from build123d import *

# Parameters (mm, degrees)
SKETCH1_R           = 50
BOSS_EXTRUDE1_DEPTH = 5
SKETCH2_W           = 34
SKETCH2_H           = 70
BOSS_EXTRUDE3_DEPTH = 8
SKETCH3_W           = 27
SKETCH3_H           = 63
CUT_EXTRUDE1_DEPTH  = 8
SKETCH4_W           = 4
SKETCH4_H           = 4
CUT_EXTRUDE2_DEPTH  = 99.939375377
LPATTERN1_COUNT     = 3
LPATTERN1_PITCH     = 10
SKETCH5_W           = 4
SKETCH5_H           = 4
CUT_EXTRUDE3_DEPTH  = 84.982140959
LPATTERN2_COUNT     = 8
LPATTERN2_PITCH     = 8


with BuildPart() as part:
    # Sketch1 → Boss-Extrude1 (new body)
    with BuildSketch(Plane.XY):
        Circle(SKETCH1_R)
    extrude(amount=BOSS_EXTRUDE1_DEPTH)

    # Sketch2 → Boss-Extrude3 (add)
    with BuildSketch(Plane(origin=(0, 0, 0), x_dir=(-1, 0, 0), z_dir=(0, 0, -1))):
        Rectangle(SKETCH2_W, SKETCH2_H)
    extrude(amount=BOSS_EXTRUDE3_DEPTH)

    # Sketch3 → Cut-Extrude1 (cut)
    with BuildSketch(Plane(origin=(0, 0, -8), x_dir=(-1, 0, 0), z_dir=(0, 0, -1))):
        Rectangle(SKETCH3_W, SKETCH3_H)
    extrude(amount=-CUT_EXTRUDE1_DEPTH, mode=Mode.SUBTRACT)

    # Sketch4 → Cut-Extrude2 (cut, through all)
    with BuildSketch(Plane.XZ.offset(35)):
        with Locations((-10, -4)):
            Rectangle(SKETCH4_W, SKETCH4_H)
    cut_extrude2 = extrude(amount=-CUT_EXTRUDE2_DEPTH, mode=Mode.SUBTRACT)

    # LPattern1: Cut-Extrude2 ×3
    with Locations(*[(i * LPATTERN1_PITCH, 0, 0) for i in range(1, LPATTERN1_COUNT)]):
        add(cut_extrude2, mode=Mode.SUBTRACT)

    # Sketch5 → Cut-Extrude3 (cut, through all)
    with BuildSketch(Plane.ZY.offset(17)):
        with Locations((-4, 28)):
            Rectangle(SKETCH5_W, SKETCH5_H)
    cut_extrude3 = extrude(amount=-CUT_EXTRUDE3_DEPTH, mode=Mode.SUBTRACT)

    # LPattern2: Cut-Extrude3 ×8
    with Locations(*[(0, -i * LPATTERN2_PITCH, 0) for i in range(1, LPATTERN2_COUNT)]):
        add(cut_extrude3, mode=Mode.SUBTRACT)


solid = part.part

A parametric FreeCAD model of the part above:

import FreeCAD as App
import Part
import Sketcher

V = App.Vector
Q = App.Units.Quantity

doc = App.newDocument("Part")
body = doc.addObject("PartDesign::Body", "Body")

# Sketch on XY plane
sketch1 = body.newObject("Sketcher::SketchObject", "Sketch")
sketch1.AttachmentSupport = (doc.getObject("XY_Plane"), [""])
sketch1.MapMode = "FlatFace"
sketch1.addGeometry(Part.Circle(V(0, 0, 0), V(0, 0, 1), 50), False)
sketch1.addConstraint(Sketcher.Constraint("Coincident", 0, 3, -1, 1))
sketch1.addConstraint(Sketcher.Constraint("Diameter", 0, Q("100 mm")))
pad1 = body.newObject("PartDesign::Pad", "Pad")
pad1.Profile = sketch1
pad1.Length = 5

# Sketch on XY plane
sketch2 = body.newObject("Sketcher::SketchObject", "Sketch001")
sketch2.AttachmentSupport = (doc.getObject("XY_Plane"), [""])
sketch2.MapMode = "FlatFace"
sketch2.addGeometry(Part.LineSegment(V(17, 35, 0), V(17, -35, 0)), False)
sketch2.addGeometry(Part.LineSegment(V(17, -35, 0), V(-17, -35, 0)), False)
sketch2.addGeometry(Part.LineSegment(V(-17, -35, 0), V(-17, 35, 0)), False)
sketch2.addGeometry(Part.LineSegment(V(-17, 35, 0), V(17, 35, 0)), False)
sketch2.addConstraint(Sketcher.Constraint("Coincident", 0, 2, 1, 1))
sketch2.addConstraint(Sketcher.Constraint("Coincident", 1, 2, 2, 1))
sketch2.addConstraint(Sketcher.Constraint("Coincident", 2, 2, 3, 1))
sketch2.addConstraint(Sketcher.Constraint("Coincident", 3, 2, 0, 1))
sketch2.addConstraint(Sketcher.Constraint("Vertical", 0))
sketch2.addConstraint(Sketcher.Constraint("Horizontal", 1))
sketch2.addConstraint(Sketcher.Constraint("Vertical", 2))
sketch2.addConstraint(Sketcher.Constraint("Horizontal", 3))
sketch2.addConstraint(Sketcher.Constraint("Symmetric", 0, 2, 2, 2, -1, 1))
sketch2.addConstraint(Sketcher.Constraint("DistanceX", 1, 2, 1, 1, Q("34 mm")))
sketch2.addConstraint(Sketcher.Constraint("DistanceY", 0, 2, 0, 1, Q("70 mm")))
pad2 = body.newObject("PartDesign::Pad", "Pad001")
pad2.Profile = sketch2
pad2.Length = 8
pad2.Reversed = True

# Sketch on XY plane
sketch3 = body.newObject("Sketcher::SketchObject", "Sketch002")
sketch3.AttachmentSupport = (doc.getObject("XY_Plane"), [""])
sketch3.MapMode = "FlatFace"
sketch3.AttachmentOffset = App.Placement(V(0, 0, -8), App.Rotation())
sketch3.addGeometry(Part.LineSegment(V(14, 32, 0), V(14, -32, 0)), False)
sketch3.addGeometry(Part.LineSegment(V(14, -32, 0), V(-14, -32, 0)), False)
sketch3.addGeometry(Part.LineSegment(V(-14, -32, 0), V(-14, 32, 0)), False)
sketch3.addGeometry(Part.LineSegment(V(-14, 32, 0), V(14, 32, 0)), False)
sketch3.addConstraint(Sketcher.Constraint("Coincident", 0, 2, 1, 1))
sketch3.addConstraint(Sketcher.Constraint("Coincident", 1, 2, 2, 1))
sketch3.addConstraint(Sketcher.Constraint("Coincident", 2, 2, 3, 1))
sketch3.addConstraint(Sketcher.Constraint("Coincident", 3, 2, 0, 1))
sketch3.addConstraint(Sketcher.Constraint("Vertical", 0))
sketch3.addConstraint(Sketcher.Constraint("Horizontal", 1))
sketch3.addConstraint(Sketcher.Constraint("Vertical", 2))
sketch3.addConstraint(Sketcher.Constraint("Horizontal", 3))
sketch3.addConstraint(Sketcher.Constraint("Symmetric", 0, 2, 2, 2, -1, 1))
sketch3.addConstraint(Sketcher.Constraint("DistanceX", 1, 2, 1, 1, Q("27 mm")))
sketch3.addConstraint(Sketcher.Constraint("DistanceY", 0, 2, 0, 1, Q("63 mm")))
pocket1 = body.newObject("PartDesign::Pocket", "Pocket")
pocket1.Profile = sketch3
pocket1.Length = 8
pocket1.Reversed = True

# Sketch on XZ plane
sketch4 = body.newObject("Sketcher::SketchObject", "Sketch003")
sketch4.AttachmentSupport = (doc.getObject("XZ_Plane"), [""])
sketch4.MapMode = "FlatFace"
sketch4.AttachmentOffset = App.Placement(V(0, 0, 35), App.Rotation())
sketch4.addGeometry(Part.LineSegment(V(-12, -2, 0), V(-12, -6, 0)), False)
sketch4.addGeometry(Part.LineSegment(V(-12, -6, 0), V(-8, -6, 0)), False)
sketch4.addGeometry(Part.LineSegment(V(-8, -6, 0), V(-8, -2, 0)), False)
sketch4.addGeometry(Part.LineSegment(V(-8, -2, 0), V(-12, -2, 0)), False)
sketch4.addConstraint(Sketcher.Constraint("Coincident", 0, 2, 1, 1))
sketch4.addConstraint(Sketcher.Constraint("Coincident", 1, 2, 2, 1))
sketch4.addConstraint(Sketcher.Constraint("Coincident", 2, 2, 3, 1))
sketch4.addConstraint(Sketcher.Constraint("Coincident", 3, 2, 0, 1))
sketch4.addConstraint(Sketcher.Constraint("Vertical", 0))
sketch4.addConstraint(Sketcher.Constraint("Horizontal", 1))
sketch4.addConstraint(Sketcher.Constraint("Vertical", 2))
sketch4.addConstraint(Sketcher.Constraint("Horizontal", 3))
sketch4.addConstraint(Sketcher.Constraint("Equal", 3, 0))
sketch4.addConstraint(Sketcher.Constraint("DistanceX", 1, 1, 1, 2, Q("4 mm")))
sketch4.addConstraint(Sketcher.Constraint("DistanceX", 0, 2, -1, 1, Q("12 mm")))
sketch4.addConstraint(Sketcher.Constraint("DistanceY", 0, 2, -1, 1, Q("6 mm")))
pocket2 = body.newObject("PartDesign::Pocket", "Pocket001")
pocket2.Profile = sketch4
pocket2.Type = "ThroughAll"
doc.recompute()

linearpattern = body.newObject("PartDesign::LinearPattern", "LinearPattern")
linearpattern.Originals = [pocket2]
linearpattern.Direction = (doc.getObject("X_Axis"), [""])
linearpattern.Mode = "offset"
linearpattern.Offset = 10
linearpattern.Occurrences = 3
body.Tip = linearpattern

# Sketch on YZ plane
sketch5 = body.newObject("Sketcher::SketchObject", "Sketch004")
sketch5.AttachmentSupport = (doc.getObject("YZ_Plane"), [""])
sketch5.MapMode = "FlatFace"
sketch5.AttachmentOffset = App.Placement(V(0, 0, -17), App.Rotation())
sketch5.addGeometry(Part.LineSegment(V(30, -6, 0), V(26, -6, 0)), False)
sketch5.addGeometry(Part.LineSegment(V(26, -6, 0), V(26, -2, 0)), False)
sketch5.addGeometry(Part.LineSegment(V(26, -2, 0), V(30, -2, 0)), False)
sketch5.addGeometry(Part.LineSegment(V(30, -2, 0), V(30, -6, 0)), False)
sketch5.addConstraint(Sketcher.Constraint("Coincident", 0, 2, 1, 1))
sketch5.addConstraint(Sketcher.Constraint("Coincident", 1, 2, 2, 1))
sketch5.addConstraint(Sketcher.Constraint("Coincident", 2, 2, 3, 1))
sketch5.addConstraint(Sketcher.Constraint("Coincident", 3, 2, 0, 1))
sketch5.addConstraint(Sketcher.Constraint("Horizontal", 0))
sketch5.addConstraint(Sketcher.Constraint("Vertical", 1))
sketch5.addConstraint(Sketcher.Constraint("Horizontal", 2))
sketch5.addConstraint(Sketcher.Constraint("Vertical", 3))
sketch5.addConstraint(Sketcher.Constraint("Equal", 2, 1))
sketch5.addConstraint(Sketcher.Constraint("DistanceX", 0, 2, 0, 1, Q("4 mm")))
sketch5.addConstraint(Sketcher.Constraint("DistanceX", -1, 1, 0, 2, Q("26 mm")))
sketch5.addConstraint(Sketcher.Constraint("DistanceY", 0, 2, -1, 1, Q("6 mm")))
pocket3 = body.newObject("PartDesign::Pocket", "Pocket002")
pocket3.Profile = sketch5
pocket3.Type = "ThroughAll"
pocket3.Reversed = True
doc.recompute()

linearpattern2 = body.newObject("PartDesign::LinearPattern", "LinearPattern001")
linearpattern2.Originals = [pocket3]
linearpattern2.Direction = (doc.getObject("Y_Axis"), [""])
linearpattern2.Mode = "offset"
linearpattern2.Offset = 8
linearpattern2.Occurrences = 8
linearpattern2.Reversed = True
body.Tip = linearpattern2

doc.recompute()
